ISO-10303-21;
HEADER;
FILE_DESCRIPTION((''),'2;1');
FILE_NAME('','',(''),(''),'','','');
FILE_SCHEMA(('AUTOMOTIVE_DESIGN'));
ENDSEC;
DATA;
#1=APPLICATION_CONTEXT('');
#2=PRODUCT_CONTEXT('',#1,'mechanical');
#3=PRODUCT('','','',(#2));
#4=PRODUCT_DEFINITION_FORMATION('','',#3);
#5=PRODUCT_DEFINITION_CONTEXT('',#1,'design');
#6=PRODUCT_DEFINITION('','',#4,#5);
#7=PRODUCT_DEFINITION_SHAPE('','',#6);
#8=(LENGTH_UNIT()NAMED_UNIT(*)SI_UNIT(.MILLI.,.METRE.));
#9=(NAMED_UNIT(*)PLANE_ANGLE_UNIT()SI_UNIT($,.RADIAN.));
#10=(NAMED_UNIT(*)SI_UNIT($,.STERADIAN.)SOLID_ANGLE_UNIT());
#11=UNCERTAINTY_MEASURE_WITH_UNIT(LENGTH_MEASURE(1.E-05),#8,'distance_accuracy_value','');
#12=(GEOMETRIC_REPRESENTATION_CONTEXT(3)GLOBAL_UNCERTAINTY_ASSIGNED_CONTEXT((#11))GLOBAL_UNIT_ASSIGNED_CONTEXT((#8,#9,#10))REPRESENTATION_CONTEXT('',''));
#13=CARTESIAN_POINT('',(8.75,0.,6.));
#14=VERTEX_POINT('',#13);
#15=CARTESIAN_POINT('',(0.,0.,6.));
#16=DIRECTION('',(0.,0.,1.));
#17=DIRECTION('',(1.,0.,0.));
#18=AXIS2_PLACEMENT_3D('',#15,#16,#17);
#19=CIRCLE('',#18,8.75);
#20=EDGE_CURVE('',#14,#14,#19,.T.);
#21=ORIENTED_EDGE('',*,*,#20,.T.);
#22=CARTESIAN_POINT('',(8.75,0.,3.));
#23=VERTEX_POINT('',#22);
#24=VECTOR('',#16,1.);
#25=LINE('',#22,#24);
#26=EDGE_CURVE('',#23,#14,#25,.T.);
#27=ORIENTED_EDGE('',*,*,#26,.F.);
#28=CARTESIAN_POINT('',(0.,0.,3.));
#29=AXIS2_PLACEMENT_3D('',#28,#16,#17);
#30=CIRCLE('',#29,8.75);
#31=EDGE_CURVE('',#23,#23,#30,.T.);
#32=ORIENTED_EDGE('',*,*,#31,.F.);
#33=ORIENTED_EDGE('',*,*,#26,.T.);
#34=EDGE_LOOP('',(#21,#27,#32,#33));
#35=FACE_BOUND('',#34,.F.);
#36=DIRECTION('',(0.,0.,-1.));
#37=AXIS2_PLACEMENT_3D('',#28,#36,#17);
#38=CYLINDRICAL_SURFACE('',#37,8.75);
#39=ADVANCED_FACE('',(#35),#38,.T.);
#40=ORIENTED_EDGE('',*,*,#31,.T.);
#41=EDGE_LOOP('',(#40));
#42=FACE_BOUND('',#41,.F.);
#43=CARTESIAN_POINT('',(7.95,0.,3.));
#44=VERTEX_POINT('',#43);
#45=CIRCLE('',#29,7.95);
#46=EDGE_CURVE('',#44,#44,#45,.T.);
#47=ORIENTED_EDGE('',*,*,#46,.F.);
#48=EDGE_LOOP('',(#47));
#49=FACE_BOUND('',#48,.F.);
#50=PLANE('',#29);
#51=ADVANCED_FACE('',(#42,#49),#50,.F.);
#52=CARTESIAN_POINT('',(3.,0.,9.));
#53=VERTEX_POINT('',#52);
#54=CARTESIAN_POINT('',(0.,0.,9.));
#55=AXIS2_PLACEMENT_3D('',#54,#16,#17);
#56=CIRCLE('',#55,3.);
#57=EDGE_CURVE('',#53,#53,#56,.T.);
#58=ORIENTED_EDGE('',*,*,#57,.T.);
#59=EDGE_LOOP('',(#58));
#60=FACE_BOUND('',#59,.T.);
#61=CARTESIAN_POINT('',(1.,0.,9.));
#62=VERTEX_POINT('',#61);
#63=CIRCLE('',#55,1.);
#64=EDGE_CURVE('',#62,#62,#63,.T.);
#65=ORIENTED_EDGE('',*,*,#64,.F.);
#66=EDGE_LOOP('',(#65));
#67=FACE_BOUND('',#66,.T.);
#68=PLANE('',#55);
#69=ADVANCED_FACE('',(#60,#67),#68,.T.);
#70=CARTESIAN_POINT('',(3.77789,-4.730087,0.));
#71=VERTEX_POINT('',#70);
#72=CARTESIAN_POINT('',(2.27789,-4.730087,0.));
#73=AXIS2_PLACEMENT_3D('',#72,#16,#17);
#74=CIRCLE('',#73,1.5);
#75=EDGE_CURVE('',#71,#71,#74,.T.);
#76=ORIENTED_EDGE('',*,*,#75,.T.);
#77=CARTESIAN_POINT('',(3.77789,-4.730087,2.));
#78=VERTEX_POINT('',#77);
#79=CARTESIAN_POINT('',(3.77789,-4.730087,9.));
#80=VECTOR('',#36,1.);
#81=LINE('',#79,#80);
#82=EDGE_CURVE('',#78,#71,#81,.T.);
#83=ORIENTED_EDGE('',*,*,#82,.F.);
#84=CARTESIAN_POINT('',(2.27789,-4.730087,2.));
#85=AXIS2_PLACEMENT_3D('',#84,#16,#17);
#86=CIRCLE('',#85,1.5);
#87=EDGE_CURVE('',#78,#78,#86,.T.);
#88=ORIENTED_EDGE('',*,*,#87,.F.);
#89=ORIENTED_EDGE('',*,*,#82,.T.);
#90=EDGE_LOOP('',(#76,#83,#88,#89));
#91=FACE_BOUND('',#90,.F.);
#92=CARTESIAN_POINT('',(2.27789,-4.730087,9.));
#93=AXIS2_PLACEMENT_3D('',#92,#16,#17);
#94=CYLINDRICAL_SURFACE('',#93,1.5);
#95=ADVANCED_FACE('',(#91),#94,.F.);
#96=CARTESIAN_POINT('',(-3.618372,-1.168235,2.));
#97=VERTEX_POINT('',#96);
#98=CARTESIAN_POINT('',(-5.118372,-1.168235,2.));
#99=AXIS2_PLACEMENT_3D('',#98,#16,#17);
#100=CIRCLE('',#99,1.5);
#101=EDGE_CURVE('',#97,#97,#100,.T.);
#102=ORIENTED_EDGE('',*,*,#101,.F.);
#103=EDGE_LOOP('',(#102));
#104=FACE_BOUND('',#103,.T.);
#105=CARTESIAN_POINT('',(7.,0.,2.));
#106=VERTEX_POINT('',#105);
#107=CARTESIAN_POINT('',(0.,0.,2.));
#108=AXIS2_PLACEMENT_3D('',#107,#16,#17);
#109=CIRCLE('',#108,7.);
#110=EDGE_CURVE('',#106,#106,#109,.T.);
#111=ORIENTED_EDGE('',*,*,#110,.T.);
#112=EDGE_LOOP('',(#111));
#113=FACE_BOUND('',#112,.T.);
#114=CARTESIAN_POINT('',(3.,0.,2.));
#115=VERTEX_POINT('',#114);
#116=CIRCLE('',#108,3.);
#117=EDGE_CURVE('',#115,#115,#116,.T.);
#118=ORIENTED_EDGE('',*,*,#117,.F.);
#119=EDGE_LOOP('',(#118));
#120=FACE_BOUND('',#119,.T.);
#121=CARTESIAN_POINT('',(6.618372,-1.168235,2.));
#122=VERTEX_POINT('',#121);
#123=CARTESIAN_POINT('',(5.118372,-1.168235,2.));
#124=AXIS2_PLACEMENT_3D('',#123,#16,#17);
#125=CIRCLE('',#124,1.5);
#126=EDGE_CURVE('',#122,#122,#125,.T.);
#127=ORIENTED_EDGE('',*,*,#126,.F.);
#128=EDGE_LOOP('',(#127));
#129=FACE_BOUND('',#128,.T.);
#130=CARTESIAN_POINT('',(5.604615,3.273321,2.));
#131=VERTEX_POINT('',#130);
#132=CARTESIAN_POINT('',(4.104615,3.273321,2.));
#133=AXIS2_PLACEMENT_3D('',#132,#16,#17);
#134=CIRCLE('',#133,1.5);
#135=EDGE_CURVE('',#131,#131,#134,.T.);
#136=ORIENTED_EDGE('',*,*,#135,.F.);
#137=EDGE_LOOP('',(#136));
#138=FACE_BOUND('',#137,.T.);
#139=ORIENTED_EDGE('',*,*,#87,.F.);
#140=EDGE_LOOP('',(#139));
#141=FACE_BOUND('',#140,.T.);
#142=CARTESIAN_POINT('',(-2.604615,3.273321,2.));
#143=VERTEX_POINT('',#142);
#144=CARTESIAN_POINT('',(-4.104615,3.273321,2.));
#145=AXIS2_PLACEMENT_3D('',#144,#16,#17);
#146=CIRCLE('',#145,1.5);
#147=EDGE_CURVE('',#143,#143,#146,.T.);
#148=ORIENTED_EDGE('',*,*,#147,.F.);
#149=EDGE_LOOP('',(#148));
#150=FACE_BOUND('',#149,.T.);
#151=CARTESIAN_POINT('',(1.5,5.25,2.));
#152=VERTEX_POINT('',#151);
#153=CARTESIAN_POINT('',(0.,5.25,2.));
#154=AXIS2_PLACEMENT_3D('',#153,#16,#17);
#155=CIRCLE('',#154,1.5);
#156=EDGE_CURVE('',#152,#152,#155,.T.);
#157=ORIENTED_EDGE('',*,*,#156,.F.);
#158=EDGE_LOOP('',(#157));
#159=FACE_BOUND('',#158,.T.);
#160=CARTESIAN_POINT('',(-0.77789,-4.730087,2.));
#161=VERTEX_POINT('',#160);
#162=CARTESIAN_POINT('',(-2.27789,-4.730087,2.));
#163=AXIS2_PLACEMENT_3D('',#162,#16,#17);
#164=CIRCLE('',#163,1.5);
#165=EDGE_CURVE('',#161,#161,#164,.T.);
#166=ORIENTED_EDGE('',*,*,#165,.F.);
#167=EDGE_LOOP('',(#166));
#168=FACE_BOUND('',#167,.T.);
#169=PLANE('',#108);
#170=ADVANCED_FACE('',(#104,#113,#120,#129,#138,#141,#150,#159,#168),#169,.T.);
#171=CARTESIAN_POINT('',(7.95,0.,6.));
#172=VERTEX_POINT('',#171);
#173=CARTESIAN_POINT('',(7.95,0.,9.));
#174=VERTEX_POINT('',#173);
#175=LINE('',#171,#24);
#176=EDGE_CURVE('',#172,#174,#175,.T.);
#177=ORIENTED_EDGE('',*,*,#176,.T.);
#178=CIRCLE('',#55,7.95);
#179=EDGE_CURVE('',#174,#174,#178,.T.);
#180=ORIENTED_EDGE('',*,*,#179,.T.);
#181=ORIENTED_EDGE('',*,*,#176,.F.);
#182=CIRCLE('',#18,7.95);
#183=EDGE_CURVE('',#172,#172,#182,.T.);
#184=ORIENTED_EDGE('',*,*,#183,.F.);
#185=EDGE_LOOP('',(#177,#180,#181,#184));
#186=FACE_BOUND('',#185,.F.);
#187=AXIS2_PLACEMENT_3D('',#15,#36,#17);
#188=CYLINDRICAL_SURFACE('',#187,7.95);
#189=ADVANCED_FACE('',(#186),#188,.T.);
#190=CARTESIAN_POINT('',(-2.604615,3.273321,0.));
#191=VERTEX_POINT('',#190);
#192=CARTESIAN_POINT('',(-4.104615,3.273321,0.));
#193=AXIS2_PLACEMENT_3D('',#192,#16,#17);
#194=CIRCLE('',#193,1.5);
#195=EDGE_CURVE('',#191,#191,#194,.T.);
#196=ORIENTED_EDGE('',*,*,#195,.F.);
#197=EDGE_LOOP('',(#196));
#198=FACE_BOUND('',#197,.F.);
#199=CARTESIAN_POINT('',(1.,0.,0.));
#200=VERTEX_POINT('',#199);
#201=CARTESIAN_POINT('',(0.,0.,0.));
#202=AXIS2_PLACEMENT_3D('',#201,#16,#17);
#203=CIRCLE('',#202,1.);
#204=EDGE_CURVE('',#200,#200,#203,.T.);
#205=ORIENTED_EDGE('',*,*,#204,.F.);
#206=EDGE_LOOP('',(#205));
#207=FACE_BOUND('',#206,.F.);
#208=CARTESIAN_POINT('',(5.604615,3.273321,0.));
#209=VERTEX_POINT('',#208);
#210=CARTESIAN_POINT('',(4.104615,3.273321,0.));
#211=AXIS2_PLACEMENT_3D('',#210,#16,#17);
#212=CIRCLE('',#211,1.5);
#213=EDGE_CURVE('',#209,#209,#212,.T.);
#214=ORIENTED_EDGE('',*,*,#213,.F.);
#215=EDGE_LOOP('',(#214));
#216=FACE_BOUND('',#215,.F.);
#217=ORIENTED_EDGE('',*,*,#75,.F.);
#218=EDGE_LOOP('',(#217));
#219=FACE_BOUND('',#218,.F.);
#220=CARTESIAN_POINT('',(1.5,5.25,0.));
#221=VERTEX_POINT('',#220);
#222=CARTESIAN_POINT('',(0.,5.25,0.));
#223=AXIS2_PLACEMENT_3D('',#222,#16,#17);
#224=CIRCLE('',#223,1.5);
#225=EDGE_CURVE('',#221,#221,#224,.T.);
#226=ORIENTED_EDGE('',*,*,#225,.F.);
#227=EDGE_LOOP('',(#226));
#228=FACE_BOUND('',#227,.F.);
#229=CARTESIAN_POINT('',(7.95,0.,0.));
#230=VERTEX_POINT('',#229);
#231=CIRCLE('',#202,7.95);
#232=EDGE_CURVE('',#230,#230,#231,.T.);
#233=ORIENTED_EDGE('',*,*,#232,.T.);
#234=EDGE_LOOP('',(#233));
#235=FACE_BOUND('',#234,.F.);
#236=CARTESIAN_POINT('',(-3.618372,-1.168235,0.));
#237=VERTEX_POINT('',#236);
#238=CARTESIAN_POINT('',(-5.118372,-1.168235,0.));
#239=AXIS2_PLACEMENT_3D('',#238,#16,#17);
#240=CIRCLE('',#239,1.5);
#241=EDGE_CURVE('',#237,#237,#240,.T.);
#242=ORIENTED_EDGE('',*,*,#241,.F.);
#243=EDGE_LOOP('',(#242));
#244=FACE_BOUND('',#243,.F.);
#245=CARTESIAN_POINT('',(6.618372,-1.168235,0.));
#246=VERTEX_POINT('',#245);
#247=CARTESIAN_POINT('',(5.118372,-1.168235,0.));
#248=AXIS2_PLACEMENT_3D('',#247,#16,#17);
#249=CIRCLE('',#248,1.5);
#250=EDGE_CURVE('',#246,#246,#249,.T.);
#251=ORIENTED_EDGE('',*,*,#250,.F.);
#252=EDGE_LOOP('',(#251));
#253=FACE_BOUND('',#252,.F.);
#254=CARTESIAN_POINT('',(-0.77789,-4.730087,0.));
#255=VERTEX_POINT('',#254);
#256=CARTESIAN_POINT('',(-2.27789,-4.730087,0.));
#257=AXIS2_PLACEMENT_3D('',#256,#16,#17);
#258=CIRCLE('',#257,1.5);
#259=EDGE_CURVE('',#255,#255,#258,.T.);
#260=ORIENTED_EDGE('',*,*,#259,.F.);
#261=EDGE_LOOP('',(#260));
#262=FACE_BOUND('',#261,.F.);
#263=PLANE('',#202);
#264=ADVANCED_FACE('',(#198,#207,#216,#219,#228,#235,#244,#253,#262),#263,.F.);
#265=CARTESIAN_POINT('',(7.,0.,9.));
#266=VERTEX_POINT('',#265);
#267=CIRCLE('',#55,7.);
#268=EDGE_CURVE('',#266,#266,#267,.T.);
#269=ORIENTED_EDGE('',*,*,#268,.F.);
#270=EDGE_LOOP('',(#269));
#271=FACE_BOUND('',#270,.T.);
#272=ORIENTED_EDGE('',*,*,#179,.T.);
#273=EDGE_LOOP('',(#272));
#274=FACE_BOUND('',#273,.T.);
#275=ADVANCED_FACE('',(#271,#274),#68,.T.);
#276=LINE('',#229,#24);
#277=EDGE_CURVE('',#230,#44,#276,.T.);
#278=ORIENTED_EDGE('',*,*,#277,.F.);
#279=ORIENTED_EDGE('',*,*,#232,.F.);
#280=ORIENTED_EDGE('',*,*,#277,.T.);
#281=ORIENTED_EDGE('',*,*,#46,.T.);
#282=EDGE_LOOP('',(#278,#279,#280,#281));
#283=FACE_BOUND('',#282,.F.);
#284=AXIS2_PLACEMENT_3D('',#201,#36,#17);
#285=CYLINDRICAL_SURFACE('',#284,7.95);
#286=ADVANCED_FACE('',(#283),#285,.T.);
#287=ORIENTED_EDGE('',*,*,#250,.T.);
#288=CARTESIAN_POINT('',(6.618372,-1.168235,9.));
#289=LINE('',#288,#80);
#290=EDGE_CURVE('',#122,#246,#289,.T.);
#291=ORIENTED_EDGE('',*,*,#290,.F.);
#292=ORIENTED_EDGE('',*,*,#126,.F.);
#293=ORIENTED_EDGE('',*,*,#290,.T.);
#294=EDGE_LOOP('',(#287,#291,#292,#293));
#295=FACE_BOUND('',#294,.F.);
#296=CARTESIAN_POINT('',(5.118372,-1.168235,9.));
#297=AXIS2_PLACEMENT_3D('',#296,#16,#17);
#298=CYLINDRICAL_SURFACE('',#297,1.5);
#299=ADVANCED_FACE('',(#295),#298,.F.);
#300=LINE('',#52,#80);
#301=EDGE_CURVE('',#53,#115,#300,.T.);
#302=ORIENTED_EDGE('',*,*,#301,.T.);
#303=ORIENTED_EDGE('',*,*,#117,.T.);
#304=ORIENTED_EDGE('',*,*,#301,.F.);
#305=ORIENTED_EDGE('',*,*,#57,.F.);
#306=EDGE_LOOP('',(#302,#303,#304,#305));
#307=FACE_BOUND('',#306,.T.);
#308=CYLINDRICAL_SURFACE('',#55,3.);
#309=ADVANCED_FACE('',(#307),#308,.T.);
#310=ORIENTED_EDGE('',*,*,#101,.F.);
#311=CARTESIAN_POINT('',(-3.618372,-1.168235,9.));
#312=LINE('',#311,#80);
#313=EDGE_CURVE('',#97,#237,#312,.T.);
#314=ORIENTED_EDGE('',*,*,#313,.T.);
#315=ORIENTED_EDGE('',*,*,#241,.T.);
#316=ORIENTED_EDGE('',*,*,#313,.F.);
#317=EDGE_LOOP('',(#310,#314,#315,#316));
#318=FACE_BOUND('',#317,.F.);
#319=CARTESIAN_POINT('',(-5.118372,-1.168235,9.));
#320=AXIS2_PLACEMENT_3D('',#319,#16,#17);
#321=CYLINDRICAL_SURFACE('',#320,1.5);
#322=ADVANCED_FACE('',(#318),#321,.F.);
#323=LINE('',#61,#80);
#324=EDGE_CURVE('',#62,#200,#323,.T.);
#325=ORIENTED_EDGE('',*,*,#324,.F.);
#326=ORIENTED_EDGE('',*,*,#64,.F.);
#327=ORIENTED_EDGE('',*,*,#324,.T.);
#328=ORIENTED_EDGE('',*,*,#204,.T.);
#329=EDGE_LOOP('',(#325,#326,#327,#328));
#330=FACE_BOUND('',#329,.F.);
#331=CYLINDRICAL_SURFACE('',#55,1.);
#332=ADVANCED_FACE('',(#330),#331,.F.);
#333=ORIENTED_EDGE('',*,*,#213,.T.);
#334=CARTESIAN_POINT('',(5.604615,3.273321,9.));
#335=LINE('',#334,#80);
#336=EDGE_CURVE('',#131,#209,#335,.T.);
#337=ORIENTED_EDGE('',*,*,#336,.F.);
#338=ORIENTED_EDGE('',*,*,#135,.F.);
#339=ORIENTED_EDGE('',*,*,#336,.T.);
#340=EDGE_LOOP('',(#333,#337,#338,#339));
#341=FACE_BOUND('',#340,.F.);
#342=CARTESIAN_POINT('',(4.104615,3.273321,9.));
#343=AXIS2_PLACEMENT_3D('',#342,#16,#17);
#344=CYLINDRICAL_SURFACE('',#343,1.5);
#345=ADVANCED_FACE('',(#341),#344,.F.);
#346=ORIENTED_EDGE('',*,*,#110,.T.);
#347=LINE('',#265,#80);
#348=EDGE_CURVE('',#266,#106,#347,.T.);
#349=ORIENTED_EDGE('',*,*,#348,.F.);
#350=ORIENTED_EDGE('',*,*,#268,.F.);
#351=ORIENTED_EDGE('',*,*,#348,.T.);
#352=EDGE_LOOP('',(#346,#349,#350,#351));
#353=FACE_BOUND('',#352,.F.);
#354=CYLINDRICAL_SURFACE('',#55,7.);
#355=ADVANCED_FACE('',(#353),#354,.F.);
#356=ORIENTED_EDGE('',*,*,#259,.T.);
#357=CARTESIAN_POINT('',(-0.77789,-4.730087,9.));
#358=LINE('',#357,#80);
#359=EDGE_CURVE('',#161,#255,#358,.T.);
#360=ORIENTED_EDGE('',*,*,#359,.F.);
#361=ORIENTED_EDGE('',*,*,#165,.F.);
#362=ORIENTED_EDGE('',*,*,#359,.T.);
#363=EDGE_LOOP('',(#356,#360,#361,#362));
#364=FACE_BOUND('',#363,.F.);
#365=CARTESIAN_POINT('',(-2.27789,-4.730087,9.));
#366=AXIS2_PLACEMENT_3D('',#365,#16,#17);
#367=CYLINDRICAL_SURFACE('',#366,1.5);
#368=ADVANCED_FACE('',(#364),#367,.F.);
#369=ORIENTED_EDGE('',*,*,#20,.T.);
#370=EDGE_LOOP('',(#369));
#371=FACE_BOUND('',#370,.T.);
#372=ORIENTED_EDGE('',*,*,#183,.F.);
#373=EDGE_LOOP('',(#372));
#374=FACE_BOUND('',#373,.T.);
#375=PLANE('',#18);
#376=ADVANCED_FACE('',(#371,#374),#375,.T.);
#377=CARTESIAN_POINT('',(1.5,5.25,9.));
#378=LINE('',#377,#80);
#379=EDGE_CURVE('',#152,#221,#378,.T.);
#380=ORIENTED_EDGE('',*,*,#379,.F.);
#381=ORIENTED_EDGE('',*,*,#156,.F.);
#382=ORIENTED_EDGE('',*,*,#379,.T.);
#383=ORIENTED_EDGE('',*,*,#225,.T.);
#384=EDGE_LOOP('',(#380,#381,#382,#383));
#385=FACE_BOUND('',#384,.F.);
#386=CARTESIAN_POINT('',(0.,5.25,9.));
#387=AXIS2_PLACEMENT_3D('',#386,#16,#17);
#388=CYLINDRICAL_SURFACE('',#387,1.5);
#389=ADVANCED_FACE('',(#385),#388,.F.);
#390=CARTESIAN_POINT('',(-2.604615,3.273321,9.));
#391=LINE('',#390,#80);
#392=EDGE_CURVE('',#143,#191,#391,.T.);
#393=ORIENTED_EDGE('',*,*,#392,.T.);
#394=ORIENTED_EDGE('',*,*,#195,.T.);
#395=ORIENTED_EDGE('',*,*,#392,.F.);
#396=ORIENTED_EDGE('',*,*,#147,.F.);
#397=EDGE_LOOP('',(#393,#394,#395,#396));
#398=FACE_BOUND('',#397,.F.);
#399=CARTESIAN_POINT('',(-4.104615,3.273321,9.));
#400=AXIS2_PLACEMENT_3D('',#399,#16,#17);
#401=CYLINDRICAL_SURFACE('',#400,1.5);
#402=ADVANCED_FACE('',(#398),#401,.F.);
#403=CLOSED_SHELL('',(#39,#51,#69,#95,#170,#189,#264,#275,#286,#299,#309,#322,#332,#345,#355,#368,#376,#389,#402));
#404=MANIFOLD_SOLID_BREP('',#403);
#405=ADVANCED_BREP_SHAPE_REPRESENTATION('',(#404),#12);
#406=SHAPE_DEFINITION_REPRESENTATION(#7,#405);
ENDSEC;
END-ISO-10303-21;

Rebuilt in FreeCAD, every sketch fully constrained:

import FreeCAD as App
import Part
import Sketcher
from FreeCAD import Vector

doc = App.newDocument("Part")
body = doc.addObject("PartDesign::Body", "Body")

# Sketch on XY plane
sketch1 = doc.addObject("Sketcher::SketchObject", "Sketch")
body.addObject(sketch1)
sketch1.AttachmentSupport = (doc.XY_Plane, [""])
sketch1.MapMode = "FlatFace"
sketch1.addGeometry(Part.Circle(Vector(0, 0, 0), Vector(0, 0, 1), 8), False)
sketch1.addConstraint(Sketcher.Constraint("Coincident", 0, 3, -1, 1))
sketch1.addConstraint(Sketcher.Constraint("Diameter", 0, 15.9))
pad1 = doc.addObject("PartDesign::Pad", "Pad")
body.addObject(pad1)
pad1.Profile = sketch1
pad1.Length = 3

# Sketch on XY plane
sketch2 = doc.addObject("Sketcher::SketchObject", "Sketch001")
body.addObject(sketch2)
sketch2.AttachmentSupport = (doc.XY_Plane, [""])
sketch2.MapMode = "FlatFace"
sketch2.AttachmentOffset = App.Placement(Vector(0, 0, 3), App.Rotation())
sketch2.addGeometry(Part.Circle(Vector(0, 0, 0), Vector(0, 0, 1), 9), False)
sketch2.addConstraint(Sketcher.Constraint("Coincident", 0, 3, -1, 1))
sketch2.addConstraint(Sketcher.Constraint("Diameter", 0, 17.5))
pad2 = doc.addObject("PartDesign::Pad", "Pad001")
body.addObject(pad2)
pad2.Profile = sketch2
pad2.Length = 3

# Sketch on XY plane
sketch3 = doc.addObject("Sketcher::SketchObject", "Sketch002")
body.addObject(sketch3)
sketch3.AttachmentSupport = (doc.XY_Plane, [""])
sketch3.MapMode = "FlatFace"
sketch3.AttachmentOffset = App.Placement(Vector(0, 0, 6), App.Rotation())
sketch3.addGeometry(Part.Circle(Vector(0, 0, 0), Vector(0, 0, 1), 8), False)
sketch3.addConstraint(Sketcher.Constraint("Coincident", 0, 3, -1, 1))
sketch3.addConstraint(Sketcher.Constraint("Diameter", 0, 15.9))
pad3 = doc.addObject("PartDesign::Pad", "Pad002")
body.addObject(pad3)
pad3.Profile = sketch3
pad3.Length = 3

# Sketch on XY plane
sketch4 = doc.addObject("Sketcher::SketchObject", "Sketch003")
body.addObject(sketch4)
sketch4.AttachmentSupport = (doc.XY_Plane, [""])
sketch4.MapMode = "FlatFace"
sketch4.AttachmentOffset = App.Placement(Vector(0, 0, 9), App.Rotation())
sketch4.addGeometry(Part.Circle(Vector(-4.1, 3.3, 0), Vector(0, 0, 1), 1.5), False)
sketch4.addGeometry(Part.Circle(Vector(0, 5.2, 0), Vector(0, 0, 1), 1.5), False)
sketch4.addGeometry(Part.Circle(Vector(4.1, 3.3, 0), Vector(0, 0, 1), 1.5), False)
sketch4.addGeometry(Part.Circle(Vector(5.1, -1.2, 0), Vector(0, 0, 1), 1.5), False)
sketch4.addGeometry(Part.Circle(Vector(2.3, -4.7, 0), Vector(0, 0, 1), 1.5), False)
sketch4.addGeometry(Part.Circle(Vector(-2.3, -4.7, 0), Vector(0, 0, 1), 1.5), False)
sketch4.addGeometry(Part.Circle(Vector(-5.1, -1.2, 0), Vector(0, 0, 1), 1.5), False)
sketch4.addConstraint(Sketcher.Constraint("Equal", 0, 1))
sketch4.addConstraint(Sketcher.Constraint("Equal", 1, 2))
sketch4.addConstraint(Sketcher.Constraint("Equal", 2, 3))
sketch4.addConstraint(Sketcher.Constraint("Equal", 3, 4))
sketch4.addConstraint(Sketcher.Constraint("Equal", 4, 5))
sketch4.addConstraint(Sketcher.Constraint("Equal", 5, 6))
sketch4.addConstraint(Sketcher.Constraint("Symmetric", 0, 3, 2, 3, -2))
sketch4.addConstraint(Sketcher.Constraint("Symmetric", 4, 3, 5, 3, -2))
sketch4.addConstraint(Sketcher.Constraint("Symmetric", 3, 3, 6, 3, -2))
sketch4.addConstraint(Sketcher.Constraint("PointOnObject", 1, 3, -2))
sketch4.addConstraint(Sketcher.Constraint("Diameter", 0, 3.0))
sketch4.addConstraint(Sketcher.Constraint("DistanceY", -1, 1, 1, 3, 5.25))
sketch4.addConstraint(Sketcher.Constraint("DistanceY", -1, 1, 0, 3, 3.273321))
sketch4.addConstraint(Sketcher.Constraint("DistanceX", -1, 1, 3, 3, 5.118372))
sketch4.addConstraint(Sketcher.Constraint("DistanceX", -1, 1, 4, 3, 2.27789))
sketch4.addConstraint(Sketcher.Constraint("DistanceX", 0, 3, 2, 3, 8.209231))
sketch4.addConstraint(Sketcher.Constraint("DistanceY", 4, 3, 3, 3, 3.561852))
sketch4.addConstraint(Sketcher.Constraint("DistanceY", 4, 3, 2, 3, 8.003408))
pocket1 = doc.addObject("PartDesign::Pocket", "Pocket")
body.addObject(pocket1)
pocket1.Profile = sketch4
pocket1.Length = 25

# Sketch on XY plane
sketch5 = doc.addObject("Sketcher::SketchObject", "Sketch004")
body.addObject(sketch5)
sketch5.AttachmentSupport = (doc.XY_Plane, [""])
sketch5.MapMode = "FlatFace"
sketch5.AttachmentOffset = App.Placement(Vector(0, 0, 9), App.Rotation())
sketch5.addGeometry(Part.Circle(Vector(0, 0, 0), Vector(0, 0, 1), 7), False)
sketch5.addGeometry(Part.Circle(Vector(-2.3, -4.7, 0), Vector(0, 0, 1), 1.5), False)
sketch5.addGeometry(Part.Circle(Vector(-5.1, -1.2, 0), Vector(0, 0, 1), 1.5), False)
sketch5.addGeometry(Part.Circle(Vector(2.3, -4.7, 0), Vector(0, 0, 1), 1.5), False)
sketch5.addGeometry(Part.Circle(Vector(0, 0, 0), Vector(0, 0, 1), 3), False)
sketch5.addGeometry(Part.Circle(Vector(5.1, -1.2, 0), Vector(0, 0, 1), 1.5), False)
sketch5.addGeometry(Part.Circle(Vector(-4.1, 3.3, 0), Vector(0, 0, 1), 1.5), False)
sketch5.addGeometry(Part.Circle(Vector(4.1, 3.3, 0), Vector(0, 0, 1), 1.5), False)
sketch5.addGeometry(Part.Circle(Vector(0, 5.2, 0), Vector(0, 0, 1), 1.5), False)
sketch5.addConstraint(Sketcher.Constraint("Coincident", 0, 3, -1, 1))
sketch5.addConstraint(Sketcher.Constraint("Coincident", 4, 3, -1, 1))
sketch5.addConstraint(Sketcher.Constraint("Equal", 1, 2))
sketch5.addConstraint(Sketcher.Constraint("Equal", 2, 3))
sketch5.addConstraint(Sketcher.Constraint("Equal", 3, 5))
sketch5.addConstraint(Sketcher.Constraint("Equal", 5, 6))
sketch5.addConstraint(Sketcher.Constraint("Equal", 6, 7))
sketch5.addConstraint(Sketcher.Constraint("Equal", 7, 8))
sketch5.addConstraint(Sketcher.Constraint("Symmetric", 1, 3, 3, 3, -2))
sketch5.addConstraint(Sketcher.Constraint("Symmetric", 2, 3, 5, 3, -2))
sketch5.addConstraint(Sketcher.Constraint("Symmetric", 6, 3, 7, 3, -2))
sketch5.addConstraint(Sketcher.Constraint("PointOnObject", 8, 3, -2))
sketch5.addConstraint(Sketcher.Constraint("Diameter", 0, 14.0))
sketch5.addConstraint(Sketcher.Constraint("Diameter", 1, 3.0))
sketch5.addConstraint(Sketcher.Constraint("Diameter", 4, 6.0))
sketch5.addConstraint(Sketcher.Constraint("DistanceY", -1, 1, 8, 3, 5.25))
sketch5.addConstraint(Sketcher.Constraint("DistanceX", 1, 3, -1, 1, 2.27789))
sketch5.addConstraint(Sketcher.Constraint("DistanceX", 2, 3, -1, 1, 5.118372))
sketch5.addConstraint(Sketcher.Constraint("DistanceY", -1, 1, 6, 3, 3.273321))
sketch5.addConstraint(Sketcher.Constraint("DistanceY", 1, 3, 2, 3, 3.561852))
sketch5.addConstraint(Sketcher.Constraint("DistanceY", 1, 3, 6, 3, 8.003408))
sketch5.addConstraint(Sketcher.Constraint("DistanceX", 6, 3, 7, 3, 8.209231))
pocket2 = doc.addObject("PartDesign::Pocket", "Pocket001")
body.addObject(pocket2)
pocket2.Profile = sketch5
pocket2.Length = 7

# Sketch on XY plane
sketch6 = doc.addObject("Sketcher::SketchObject", "Sketch005")
body.addObject(sketch6)
sketch6.AttachmentSupport = (doc.XY_Plane, [""])
sketch6.MapMode = "FlatFace"
sketch6.AttachmentOffset = App.Placement(Vector(0, 0, 9), App.Rotation())
sketch6.addGeometry(Part.Circle(Vector(0, 0, 0), Vector(0, 0, 1), 1), False)
sketch6.addConstraint(Sketcher.Constraint("Coincident", 0, 3, -1, 1))
sketch6.addConstraint(Sketcher.Constraint("Diameter", 0, 2.0))
pocket3 = doc.addObject("PartDesign::Pocket", "Pocket002")
body.addObject(pocket3)
pocket3.Profile = sketch6
pocket3.Length = 25

doc.recompute()
